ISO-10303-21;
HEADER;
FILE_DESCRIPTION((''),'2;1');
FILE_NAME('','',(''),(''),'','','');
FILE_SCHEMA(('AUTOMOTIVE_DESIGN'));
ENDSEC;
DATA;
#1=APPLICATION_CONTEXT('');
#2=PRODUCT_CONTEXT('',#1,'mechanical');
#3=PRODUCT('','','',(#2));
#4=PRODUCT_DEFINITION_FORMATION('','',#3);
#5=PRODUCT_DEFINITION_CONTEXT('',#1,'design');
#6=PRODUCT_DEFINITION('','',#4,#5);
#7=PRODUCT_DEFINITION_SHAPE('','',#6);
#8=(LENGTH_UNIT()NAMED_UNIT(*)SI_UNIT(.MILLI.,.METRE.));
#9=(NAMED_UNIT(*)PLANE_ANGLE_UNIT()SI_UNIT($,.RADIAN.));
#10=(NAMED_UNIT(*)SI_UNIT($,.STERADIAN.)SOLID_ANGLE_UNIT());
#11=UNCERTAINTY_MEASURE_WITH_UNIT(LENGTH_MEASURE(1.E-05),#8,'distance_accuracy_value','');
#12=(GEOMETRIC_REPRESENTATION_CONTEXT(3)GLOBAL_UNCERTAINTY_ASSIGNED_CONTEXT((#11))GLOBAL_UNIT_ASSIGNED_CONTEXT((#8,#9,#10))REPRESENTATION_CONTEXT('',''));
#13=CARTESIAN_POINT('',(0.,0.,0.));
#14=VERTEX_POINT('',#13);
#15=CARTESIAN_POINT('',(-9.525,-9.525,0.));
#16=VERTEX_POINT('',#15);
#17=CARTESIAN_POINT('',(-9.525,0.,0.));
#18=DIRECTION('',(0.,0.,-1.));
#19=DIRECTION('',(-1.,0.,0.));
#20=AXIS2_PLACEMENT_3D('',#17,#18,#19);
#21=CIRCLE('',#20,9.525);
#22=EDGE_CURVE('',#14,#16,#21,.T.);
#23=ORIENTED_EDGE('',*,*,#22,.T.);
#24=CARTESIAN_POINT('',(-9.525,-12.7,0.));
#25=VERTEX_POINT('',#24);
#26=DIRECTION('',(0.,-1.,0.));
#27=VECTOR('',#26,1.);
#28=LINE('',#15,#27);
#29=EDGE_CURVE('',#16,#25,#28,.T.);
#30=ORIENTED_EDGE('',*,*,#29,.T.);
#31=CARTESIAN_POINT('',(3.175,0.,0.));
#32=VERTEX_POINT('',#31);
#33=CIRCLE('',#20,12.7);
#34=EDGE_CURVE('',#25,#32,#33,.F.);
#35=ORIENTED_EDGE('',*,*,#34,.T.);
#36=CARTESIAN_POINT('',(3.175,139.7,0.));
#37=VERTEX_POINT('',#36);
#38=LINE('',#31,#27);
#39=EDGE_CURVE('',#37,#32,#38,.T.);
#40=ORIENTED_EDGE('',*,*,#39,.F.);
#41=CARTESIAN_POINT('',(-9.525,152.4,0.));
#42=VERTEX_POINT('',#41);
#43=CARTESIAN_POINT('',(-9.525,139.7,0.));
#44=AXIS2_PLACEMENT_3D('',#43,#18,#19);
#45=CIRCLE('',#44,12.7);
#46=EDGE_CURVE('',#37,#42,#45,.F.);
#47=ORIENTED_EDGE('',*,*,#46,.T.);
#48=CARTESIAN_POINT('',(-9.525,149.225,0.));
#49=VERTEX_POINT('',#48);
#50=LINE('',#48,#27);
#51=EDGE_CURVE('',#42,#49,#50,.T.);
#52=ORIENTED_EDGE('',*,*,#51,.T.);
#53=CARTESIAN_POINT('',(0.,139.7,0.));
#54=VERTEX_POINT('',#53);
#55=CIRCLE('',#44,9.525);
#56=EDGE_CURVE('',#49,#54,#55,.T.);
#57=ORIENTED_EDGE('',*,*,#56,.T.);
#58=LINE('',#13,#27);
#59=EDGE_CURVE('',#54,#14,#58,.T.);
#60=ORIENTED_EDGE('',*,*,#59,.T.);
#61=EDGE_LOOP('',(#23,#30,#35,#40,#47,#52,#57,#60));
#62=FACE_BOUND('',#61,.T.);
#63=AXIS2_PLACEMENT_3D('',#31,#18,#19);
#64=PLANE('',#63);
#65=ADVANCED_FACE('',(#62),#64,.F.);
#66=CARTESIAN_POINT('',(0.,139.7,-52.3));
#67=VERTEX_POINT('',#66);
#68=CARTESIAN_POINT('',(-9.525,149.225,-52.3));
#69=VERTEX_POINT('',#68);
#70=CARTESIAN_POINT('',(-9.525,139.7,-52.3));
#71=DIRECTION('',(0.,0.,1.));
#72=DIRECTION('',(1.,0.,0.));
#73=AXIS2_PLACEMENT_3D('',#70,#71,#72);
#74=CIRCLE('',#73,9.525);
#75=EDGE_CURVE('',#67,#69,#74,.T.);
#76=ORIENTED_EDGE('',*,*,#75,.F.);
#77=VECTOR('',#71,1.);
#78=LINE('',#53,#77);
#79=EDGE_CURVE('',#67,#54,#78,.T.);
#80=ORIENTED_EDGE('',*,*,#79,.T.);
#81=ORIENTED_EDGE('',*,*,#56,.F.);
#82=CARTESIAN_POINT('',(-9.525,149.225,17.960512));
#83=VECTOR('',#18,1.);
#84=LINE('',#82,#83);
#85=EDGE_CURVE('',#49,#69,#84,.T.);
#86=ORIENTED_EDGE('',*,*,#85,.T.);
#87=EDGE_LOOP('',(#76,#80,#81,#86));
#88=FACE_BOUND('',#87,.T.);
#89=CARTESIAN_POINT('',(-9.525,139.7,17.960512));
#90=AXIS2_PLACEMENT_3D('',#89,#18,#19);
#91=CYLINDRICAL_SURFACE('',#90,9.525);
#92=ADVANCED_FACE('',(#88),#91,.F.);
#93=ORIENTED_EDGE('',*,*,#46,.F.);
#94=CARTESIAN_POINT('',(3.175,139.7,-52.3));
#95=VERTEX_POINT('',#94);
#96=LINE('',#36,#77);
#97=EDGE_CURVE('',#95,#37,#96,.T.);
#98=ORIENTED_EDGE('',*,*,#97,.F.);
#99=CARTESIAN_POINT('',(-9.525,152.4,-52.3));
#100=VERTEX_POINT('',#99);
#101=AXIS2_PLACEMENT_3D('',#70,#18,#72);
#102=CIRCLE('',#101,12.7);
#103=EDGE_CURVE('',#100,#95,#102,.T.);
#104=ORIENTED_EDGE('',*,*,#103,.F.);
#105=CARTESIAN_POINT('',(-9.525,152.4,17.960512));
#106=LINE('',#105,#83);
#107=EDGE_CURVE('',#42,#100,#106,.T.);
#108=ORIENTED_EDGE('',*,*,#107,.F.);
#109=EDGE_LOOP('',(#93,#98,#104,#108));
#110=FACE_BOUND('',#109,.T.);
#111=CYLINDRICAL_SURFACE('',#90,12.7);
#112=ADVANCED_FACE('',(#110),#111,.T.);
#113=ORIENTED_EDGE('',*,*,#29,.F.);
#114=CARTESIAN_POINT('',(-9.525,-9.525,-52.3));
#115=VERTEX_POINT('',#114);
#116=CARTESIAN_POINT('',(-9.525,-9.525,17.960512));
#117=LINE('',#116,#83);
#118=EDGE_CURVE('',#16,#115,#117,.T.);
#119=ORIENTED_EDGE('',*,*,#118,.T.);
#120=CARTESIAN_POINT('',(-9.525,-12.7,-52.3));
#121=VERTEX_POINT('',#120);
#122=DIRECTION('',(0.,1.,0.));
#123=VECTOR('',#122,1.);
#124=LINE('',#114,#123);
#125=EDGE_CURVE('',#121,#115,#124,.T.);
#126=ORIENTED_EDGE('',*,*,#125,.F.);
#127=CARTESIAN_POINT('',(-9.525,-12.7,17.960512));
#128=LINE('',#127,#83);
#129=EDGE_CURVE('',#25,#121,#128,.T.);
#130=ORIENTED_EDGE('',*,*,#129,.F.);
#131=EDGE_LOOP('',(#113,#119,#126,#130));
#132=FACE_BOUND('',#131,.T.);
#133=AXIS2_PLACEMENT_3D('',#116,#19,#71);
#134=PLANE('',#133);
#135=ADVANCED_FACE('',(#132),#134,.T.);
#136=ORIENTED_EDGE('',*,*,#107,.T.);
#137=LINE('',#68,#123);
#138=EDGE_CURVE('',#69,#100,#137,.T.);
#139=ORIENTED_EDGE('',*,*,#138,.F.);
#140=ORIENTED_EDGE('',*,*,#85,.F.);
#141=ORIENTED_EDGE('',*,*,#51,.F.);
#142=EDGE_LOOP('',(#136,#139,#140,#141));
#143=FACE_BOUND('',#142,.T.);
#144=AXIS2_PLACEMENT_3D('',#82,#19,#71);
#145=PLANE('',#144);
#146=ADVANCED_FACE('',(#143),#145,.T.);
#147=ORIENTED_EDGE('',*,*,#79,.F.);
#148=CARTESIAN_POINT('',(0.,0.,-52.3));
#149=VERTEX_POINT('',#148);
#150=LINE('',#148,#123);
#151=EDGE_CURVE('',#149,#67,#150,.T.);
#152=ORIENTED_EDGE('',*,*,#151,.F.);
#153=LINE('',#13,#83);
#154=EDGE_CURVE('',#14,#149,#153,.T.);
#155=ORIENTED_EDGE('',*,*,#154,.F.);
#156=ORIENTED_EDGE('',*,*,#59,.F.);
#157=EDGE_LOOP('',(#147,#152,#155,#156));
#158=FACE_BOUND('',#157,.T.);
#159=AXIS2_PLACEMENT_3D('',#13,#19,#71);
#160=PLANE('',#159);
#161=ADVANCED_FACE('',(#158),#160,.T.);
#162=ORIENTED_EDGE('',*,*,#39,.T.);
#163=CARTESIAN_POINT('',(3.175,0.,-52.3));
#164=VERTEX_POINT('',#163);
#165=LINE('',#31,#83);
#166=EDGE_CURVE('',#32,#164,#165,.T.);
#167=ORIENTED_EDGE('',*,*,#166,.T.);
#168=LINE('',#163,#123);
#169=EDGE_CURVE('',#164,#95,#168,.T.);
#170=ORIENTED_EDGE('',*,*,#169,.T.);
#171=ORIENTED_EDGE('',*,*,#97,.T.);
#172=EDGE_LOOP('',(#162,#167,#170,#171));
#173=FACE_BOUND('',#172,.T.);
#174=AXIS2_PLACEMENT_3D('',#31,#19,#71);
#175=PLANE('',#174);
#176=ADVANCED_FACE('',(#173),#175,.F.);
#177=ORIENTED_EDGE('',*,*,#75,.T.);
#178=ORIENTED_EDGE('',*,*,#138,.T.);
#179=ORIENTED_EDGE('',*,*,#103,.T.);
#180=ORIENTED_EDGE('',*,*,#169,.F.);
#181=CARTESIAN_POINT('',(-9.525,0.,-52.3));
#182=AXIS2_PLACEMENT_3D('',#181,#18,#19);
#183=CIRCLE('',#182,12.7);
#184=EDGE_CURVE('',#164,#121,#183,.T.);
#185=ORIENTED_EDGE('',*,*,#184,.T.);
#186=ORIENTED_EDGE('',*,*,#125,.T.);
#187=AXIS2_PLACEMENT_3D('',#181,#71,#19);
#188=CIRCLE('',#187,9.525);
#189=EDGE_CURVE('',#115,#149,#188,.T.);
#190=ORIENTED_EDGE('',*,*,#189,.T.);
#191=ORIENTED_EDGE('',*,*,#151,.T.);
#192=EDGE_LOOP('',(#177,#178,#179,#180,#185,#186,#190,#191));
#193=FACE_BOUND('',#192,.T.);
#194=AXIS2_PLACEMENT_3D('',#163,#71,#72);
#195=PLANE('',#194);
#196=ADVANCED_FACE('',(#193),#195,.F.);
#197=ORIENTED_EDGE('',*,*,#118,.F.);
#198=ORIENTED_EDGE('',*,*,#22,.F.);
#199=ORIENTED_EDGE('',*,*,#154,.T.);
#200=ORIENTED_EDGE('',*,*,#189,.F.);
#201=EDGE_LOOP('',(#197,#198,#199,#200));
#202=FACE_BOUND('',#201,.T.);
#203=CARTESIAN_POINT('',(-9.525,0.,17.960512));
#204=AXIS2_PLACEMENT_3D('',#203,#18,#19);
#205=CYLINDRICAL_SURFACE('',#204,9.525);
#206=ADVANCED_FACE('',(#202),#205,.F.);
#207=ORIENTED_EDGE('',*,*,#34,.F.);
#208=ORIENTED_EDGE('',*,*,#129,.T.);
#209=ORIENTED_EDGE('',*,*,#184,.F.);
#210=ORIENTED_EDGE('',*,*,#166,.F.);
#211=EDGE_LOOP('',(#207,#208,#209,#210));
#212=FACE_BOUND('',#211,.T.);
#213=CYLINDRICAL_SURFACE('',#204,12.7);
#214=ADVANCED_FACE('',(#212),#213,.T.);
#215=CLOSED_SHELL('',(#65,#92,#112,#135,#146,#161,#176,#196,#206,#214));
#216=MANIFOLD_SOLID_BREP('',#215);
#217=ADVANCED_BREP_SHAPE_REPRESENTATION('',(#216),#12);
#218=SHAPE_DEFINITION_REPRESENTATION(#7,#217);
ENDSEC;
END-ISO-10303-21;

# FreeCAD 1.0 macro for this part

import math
import FreeCAD as App
import Part
import Sketcher

V = App.Vector
Q = App.Units.Quantity


def add_polygon(sketch, points):
    """Adds a closed chain of lines whose ends are joined by coincident constraints."""
    first, n = sketch.GeometryCount, len(points)
    for a, b in zip(points, points[1:] + points[:1]):
        sketch.addGeometry(Part.LineSegment(App.Vector(*a, 0), App.Vector(*b, 0)), False)
    for i in range(n):
        sketch.addConstraint(Sketcher.Constraint("Coincident", first + i, 2, first + (i + 1) % n, 1))

doc = App.newDocument("Part")
body = doc.addObject("PartDesign::Body", "Body")

# Sketch on YZ plane
sketch1 = doc.addObject("Sketcher::SketchObject", "Sketch")
body.addObject(sketch1)
sketch1.AttachmentSupport = (doc.YZ_Plane, [""])
sketch1.MapMode = "FlatFace"
add_polygon(sketch1, [(139.7, 0), (0, 0), (0, -52.3), (139.7, -52.3)])  # lines 0-3
sketch1.addConstraint(Sketcher.Constraint("Horizontal", 0))
sketch1.addConstraint(Sketcher.Constraint("Vertical", 1))
sketch1.addConstraint(Sketcher.Constraint("Horizontal", 2))
sketch1.addConstraint(Sketcher.Constraint("Vertical", 3))
sketch1.addConstraint(Sketcher.Constraint("Coincident", 0, 2, -1, 1))
sketch1.addConstraint(Sketcher.Constraint("DistanceX", 0, 2, 0, 1, Q("5.5 in")))
sketch1.addConstraint(Sketcher.Constraint("DistanceY", 1, 2, 1, 1, Q("52.3 mm")))
pad1 = doc.addObject("PartDesign::Pad", "Pad")
body.addObject(pad1)
pad1.Profile = sketch1
pad1.Length = Q("0.125 in")

# Sketch on XY plane
sketch2 = doc.addObject("Sketcher::SketchObject", "Sketch001")
body.addObject(sketch2)
sketch2.AttachmentSupport = (doc.XY_Plane, [""])
sketch2.MapMode = "FlatFace"
sketch2.AttachmentOffset = App.Placement(V(0, 0, -52.3), App.Rotation())
sketch2.addGeometry(Part.LineSegment(V(-9.525, -12.7, 0), V(-9.525, -9.525, 0)), False)
sketch2.addGeometry(Part.ArcOfCircle(Part.Circle(V(-9.525, 0, 0), V(0, 0, 1), 9.525), math.radians(-90), math.radians(0)), False)
sketch2.addGeometry(Part.LineSegment(V(0, 0, 0), V(3.175, 0, 0)), False)
sketch2.addGeometry(Part.ArcOfCircle(Part.Circle(V(-9.525, 0, 0), V(0, 0, 1), 12.7), math.radians(-90), math.radians(0)), False)
sketch2.addGeometry(Part.LineSegment(V(3.175, 139.7, 0), V(0, 139.7, 0)), False)
sketch2.addGeometry(Part.ArcOfCircle(Part.Circle(V(-9.525, 139.7, 0), V(0, 0, 1), 9.525), math.radians(0), math.radians(90)), False)
sketch2.addGeometry(Part.LineSegment(V(-9.525, 149.225, 0), V(-9.525, 152.4, 0)), False)
sketch2.addGeometry(Part.ArcOfCircle(Part.Circle(V(-9.525, 139.7, 0), V(0, 0, 1), 12.7), math.radians(0), math.radians(90)), False)
sketch2.addConstraint(Sketcher.Constraint("Coincident", 0, 2, 1, 1))
sketch2.addConstraint(Sketcher.Constraint("Coincident", 1, 2, 2, 1))
sketch2.addConstraint(Sketcher.Constraint("Coincident", 2, 2, 3, 2))
sketch2.addConstraint(Sketcher.Constraint("Coincident", 3, 1, 0, 1))
sketch2.addConstraint(Sketcher.Constraint("Coincident", 4, 2, 5, 1))
sketch2.addConstraint(Sketcher.Constraint("Coincident", 5, 2, 6, 1))
sketch2.addConstraint(Sketcher.Constraint("Coincident", 6, 2, 7, 2))
sketch2.addConstraint(Sketcher.Constraint("Coincident", 7, 1, 4, 1))
sketch2.addConstraint(Sketcher.Constraint("Vertical", 0))
sketch2.addConstraint(Sketcher.Constraint("Horizontal", 2))
sketch2.addConstraint(Sketcher.Constraint("Horizontal", 4))
sketch2.addConstraint(Sketcher.Constraint("Vertical", 6))
sketch2.addConstraint(Sketcher.Constraint("Coincident", 1, 2, -1, 1))
sketch2.addConstraint(Sketcher.Constraint("Coincident", 3, 3, 1, 3))
sketch2.addConstraint(Sketcher.Constraint("Coincident", 7, 3, 5, 3))
sketch2.addConstraint(Sketcher.Constraint("Equal", 1, 5))
sketch2.addConstraint(Sketcher.Constraint("Equal", 3, 7))
sketch2.addConstraint(Sketcher.Constraint("PointOnObject", 1, 3, -1))
sketch2.addConstraint(Sketcher.Constraint("PointOnObject", 4, 2, -2))
sketch2.addConstraint(Sketcher.Constraint("Horizontal", 7, 3, 4, 2))
sketch2.addConstraint(Sketcher.Constraint("Vertical", 7, 3, 0, 2))
sketch2.addConstraint(Sketcher.Constraint("Vertical", 3, 1, 5, 2))
sketch2.addConstraint(Sketcher.Constraint("Radius", 3, Q("0.5 in")))
sketch2.addConstraint(Sketcher.Constraint("DistanceY", -1, 1, 6, 2, Q("6 in")))
sketch2.addConstraint(Sketcher.Constraint("Radius", 1, Q("0.375 in")))
pad2 = doc.addObject("PartDesign::Pad", "Pad001")
body.addObject(pad2)
pad2.Profile = sketch2
pad2.Length = 52.3

doc.recompute()
